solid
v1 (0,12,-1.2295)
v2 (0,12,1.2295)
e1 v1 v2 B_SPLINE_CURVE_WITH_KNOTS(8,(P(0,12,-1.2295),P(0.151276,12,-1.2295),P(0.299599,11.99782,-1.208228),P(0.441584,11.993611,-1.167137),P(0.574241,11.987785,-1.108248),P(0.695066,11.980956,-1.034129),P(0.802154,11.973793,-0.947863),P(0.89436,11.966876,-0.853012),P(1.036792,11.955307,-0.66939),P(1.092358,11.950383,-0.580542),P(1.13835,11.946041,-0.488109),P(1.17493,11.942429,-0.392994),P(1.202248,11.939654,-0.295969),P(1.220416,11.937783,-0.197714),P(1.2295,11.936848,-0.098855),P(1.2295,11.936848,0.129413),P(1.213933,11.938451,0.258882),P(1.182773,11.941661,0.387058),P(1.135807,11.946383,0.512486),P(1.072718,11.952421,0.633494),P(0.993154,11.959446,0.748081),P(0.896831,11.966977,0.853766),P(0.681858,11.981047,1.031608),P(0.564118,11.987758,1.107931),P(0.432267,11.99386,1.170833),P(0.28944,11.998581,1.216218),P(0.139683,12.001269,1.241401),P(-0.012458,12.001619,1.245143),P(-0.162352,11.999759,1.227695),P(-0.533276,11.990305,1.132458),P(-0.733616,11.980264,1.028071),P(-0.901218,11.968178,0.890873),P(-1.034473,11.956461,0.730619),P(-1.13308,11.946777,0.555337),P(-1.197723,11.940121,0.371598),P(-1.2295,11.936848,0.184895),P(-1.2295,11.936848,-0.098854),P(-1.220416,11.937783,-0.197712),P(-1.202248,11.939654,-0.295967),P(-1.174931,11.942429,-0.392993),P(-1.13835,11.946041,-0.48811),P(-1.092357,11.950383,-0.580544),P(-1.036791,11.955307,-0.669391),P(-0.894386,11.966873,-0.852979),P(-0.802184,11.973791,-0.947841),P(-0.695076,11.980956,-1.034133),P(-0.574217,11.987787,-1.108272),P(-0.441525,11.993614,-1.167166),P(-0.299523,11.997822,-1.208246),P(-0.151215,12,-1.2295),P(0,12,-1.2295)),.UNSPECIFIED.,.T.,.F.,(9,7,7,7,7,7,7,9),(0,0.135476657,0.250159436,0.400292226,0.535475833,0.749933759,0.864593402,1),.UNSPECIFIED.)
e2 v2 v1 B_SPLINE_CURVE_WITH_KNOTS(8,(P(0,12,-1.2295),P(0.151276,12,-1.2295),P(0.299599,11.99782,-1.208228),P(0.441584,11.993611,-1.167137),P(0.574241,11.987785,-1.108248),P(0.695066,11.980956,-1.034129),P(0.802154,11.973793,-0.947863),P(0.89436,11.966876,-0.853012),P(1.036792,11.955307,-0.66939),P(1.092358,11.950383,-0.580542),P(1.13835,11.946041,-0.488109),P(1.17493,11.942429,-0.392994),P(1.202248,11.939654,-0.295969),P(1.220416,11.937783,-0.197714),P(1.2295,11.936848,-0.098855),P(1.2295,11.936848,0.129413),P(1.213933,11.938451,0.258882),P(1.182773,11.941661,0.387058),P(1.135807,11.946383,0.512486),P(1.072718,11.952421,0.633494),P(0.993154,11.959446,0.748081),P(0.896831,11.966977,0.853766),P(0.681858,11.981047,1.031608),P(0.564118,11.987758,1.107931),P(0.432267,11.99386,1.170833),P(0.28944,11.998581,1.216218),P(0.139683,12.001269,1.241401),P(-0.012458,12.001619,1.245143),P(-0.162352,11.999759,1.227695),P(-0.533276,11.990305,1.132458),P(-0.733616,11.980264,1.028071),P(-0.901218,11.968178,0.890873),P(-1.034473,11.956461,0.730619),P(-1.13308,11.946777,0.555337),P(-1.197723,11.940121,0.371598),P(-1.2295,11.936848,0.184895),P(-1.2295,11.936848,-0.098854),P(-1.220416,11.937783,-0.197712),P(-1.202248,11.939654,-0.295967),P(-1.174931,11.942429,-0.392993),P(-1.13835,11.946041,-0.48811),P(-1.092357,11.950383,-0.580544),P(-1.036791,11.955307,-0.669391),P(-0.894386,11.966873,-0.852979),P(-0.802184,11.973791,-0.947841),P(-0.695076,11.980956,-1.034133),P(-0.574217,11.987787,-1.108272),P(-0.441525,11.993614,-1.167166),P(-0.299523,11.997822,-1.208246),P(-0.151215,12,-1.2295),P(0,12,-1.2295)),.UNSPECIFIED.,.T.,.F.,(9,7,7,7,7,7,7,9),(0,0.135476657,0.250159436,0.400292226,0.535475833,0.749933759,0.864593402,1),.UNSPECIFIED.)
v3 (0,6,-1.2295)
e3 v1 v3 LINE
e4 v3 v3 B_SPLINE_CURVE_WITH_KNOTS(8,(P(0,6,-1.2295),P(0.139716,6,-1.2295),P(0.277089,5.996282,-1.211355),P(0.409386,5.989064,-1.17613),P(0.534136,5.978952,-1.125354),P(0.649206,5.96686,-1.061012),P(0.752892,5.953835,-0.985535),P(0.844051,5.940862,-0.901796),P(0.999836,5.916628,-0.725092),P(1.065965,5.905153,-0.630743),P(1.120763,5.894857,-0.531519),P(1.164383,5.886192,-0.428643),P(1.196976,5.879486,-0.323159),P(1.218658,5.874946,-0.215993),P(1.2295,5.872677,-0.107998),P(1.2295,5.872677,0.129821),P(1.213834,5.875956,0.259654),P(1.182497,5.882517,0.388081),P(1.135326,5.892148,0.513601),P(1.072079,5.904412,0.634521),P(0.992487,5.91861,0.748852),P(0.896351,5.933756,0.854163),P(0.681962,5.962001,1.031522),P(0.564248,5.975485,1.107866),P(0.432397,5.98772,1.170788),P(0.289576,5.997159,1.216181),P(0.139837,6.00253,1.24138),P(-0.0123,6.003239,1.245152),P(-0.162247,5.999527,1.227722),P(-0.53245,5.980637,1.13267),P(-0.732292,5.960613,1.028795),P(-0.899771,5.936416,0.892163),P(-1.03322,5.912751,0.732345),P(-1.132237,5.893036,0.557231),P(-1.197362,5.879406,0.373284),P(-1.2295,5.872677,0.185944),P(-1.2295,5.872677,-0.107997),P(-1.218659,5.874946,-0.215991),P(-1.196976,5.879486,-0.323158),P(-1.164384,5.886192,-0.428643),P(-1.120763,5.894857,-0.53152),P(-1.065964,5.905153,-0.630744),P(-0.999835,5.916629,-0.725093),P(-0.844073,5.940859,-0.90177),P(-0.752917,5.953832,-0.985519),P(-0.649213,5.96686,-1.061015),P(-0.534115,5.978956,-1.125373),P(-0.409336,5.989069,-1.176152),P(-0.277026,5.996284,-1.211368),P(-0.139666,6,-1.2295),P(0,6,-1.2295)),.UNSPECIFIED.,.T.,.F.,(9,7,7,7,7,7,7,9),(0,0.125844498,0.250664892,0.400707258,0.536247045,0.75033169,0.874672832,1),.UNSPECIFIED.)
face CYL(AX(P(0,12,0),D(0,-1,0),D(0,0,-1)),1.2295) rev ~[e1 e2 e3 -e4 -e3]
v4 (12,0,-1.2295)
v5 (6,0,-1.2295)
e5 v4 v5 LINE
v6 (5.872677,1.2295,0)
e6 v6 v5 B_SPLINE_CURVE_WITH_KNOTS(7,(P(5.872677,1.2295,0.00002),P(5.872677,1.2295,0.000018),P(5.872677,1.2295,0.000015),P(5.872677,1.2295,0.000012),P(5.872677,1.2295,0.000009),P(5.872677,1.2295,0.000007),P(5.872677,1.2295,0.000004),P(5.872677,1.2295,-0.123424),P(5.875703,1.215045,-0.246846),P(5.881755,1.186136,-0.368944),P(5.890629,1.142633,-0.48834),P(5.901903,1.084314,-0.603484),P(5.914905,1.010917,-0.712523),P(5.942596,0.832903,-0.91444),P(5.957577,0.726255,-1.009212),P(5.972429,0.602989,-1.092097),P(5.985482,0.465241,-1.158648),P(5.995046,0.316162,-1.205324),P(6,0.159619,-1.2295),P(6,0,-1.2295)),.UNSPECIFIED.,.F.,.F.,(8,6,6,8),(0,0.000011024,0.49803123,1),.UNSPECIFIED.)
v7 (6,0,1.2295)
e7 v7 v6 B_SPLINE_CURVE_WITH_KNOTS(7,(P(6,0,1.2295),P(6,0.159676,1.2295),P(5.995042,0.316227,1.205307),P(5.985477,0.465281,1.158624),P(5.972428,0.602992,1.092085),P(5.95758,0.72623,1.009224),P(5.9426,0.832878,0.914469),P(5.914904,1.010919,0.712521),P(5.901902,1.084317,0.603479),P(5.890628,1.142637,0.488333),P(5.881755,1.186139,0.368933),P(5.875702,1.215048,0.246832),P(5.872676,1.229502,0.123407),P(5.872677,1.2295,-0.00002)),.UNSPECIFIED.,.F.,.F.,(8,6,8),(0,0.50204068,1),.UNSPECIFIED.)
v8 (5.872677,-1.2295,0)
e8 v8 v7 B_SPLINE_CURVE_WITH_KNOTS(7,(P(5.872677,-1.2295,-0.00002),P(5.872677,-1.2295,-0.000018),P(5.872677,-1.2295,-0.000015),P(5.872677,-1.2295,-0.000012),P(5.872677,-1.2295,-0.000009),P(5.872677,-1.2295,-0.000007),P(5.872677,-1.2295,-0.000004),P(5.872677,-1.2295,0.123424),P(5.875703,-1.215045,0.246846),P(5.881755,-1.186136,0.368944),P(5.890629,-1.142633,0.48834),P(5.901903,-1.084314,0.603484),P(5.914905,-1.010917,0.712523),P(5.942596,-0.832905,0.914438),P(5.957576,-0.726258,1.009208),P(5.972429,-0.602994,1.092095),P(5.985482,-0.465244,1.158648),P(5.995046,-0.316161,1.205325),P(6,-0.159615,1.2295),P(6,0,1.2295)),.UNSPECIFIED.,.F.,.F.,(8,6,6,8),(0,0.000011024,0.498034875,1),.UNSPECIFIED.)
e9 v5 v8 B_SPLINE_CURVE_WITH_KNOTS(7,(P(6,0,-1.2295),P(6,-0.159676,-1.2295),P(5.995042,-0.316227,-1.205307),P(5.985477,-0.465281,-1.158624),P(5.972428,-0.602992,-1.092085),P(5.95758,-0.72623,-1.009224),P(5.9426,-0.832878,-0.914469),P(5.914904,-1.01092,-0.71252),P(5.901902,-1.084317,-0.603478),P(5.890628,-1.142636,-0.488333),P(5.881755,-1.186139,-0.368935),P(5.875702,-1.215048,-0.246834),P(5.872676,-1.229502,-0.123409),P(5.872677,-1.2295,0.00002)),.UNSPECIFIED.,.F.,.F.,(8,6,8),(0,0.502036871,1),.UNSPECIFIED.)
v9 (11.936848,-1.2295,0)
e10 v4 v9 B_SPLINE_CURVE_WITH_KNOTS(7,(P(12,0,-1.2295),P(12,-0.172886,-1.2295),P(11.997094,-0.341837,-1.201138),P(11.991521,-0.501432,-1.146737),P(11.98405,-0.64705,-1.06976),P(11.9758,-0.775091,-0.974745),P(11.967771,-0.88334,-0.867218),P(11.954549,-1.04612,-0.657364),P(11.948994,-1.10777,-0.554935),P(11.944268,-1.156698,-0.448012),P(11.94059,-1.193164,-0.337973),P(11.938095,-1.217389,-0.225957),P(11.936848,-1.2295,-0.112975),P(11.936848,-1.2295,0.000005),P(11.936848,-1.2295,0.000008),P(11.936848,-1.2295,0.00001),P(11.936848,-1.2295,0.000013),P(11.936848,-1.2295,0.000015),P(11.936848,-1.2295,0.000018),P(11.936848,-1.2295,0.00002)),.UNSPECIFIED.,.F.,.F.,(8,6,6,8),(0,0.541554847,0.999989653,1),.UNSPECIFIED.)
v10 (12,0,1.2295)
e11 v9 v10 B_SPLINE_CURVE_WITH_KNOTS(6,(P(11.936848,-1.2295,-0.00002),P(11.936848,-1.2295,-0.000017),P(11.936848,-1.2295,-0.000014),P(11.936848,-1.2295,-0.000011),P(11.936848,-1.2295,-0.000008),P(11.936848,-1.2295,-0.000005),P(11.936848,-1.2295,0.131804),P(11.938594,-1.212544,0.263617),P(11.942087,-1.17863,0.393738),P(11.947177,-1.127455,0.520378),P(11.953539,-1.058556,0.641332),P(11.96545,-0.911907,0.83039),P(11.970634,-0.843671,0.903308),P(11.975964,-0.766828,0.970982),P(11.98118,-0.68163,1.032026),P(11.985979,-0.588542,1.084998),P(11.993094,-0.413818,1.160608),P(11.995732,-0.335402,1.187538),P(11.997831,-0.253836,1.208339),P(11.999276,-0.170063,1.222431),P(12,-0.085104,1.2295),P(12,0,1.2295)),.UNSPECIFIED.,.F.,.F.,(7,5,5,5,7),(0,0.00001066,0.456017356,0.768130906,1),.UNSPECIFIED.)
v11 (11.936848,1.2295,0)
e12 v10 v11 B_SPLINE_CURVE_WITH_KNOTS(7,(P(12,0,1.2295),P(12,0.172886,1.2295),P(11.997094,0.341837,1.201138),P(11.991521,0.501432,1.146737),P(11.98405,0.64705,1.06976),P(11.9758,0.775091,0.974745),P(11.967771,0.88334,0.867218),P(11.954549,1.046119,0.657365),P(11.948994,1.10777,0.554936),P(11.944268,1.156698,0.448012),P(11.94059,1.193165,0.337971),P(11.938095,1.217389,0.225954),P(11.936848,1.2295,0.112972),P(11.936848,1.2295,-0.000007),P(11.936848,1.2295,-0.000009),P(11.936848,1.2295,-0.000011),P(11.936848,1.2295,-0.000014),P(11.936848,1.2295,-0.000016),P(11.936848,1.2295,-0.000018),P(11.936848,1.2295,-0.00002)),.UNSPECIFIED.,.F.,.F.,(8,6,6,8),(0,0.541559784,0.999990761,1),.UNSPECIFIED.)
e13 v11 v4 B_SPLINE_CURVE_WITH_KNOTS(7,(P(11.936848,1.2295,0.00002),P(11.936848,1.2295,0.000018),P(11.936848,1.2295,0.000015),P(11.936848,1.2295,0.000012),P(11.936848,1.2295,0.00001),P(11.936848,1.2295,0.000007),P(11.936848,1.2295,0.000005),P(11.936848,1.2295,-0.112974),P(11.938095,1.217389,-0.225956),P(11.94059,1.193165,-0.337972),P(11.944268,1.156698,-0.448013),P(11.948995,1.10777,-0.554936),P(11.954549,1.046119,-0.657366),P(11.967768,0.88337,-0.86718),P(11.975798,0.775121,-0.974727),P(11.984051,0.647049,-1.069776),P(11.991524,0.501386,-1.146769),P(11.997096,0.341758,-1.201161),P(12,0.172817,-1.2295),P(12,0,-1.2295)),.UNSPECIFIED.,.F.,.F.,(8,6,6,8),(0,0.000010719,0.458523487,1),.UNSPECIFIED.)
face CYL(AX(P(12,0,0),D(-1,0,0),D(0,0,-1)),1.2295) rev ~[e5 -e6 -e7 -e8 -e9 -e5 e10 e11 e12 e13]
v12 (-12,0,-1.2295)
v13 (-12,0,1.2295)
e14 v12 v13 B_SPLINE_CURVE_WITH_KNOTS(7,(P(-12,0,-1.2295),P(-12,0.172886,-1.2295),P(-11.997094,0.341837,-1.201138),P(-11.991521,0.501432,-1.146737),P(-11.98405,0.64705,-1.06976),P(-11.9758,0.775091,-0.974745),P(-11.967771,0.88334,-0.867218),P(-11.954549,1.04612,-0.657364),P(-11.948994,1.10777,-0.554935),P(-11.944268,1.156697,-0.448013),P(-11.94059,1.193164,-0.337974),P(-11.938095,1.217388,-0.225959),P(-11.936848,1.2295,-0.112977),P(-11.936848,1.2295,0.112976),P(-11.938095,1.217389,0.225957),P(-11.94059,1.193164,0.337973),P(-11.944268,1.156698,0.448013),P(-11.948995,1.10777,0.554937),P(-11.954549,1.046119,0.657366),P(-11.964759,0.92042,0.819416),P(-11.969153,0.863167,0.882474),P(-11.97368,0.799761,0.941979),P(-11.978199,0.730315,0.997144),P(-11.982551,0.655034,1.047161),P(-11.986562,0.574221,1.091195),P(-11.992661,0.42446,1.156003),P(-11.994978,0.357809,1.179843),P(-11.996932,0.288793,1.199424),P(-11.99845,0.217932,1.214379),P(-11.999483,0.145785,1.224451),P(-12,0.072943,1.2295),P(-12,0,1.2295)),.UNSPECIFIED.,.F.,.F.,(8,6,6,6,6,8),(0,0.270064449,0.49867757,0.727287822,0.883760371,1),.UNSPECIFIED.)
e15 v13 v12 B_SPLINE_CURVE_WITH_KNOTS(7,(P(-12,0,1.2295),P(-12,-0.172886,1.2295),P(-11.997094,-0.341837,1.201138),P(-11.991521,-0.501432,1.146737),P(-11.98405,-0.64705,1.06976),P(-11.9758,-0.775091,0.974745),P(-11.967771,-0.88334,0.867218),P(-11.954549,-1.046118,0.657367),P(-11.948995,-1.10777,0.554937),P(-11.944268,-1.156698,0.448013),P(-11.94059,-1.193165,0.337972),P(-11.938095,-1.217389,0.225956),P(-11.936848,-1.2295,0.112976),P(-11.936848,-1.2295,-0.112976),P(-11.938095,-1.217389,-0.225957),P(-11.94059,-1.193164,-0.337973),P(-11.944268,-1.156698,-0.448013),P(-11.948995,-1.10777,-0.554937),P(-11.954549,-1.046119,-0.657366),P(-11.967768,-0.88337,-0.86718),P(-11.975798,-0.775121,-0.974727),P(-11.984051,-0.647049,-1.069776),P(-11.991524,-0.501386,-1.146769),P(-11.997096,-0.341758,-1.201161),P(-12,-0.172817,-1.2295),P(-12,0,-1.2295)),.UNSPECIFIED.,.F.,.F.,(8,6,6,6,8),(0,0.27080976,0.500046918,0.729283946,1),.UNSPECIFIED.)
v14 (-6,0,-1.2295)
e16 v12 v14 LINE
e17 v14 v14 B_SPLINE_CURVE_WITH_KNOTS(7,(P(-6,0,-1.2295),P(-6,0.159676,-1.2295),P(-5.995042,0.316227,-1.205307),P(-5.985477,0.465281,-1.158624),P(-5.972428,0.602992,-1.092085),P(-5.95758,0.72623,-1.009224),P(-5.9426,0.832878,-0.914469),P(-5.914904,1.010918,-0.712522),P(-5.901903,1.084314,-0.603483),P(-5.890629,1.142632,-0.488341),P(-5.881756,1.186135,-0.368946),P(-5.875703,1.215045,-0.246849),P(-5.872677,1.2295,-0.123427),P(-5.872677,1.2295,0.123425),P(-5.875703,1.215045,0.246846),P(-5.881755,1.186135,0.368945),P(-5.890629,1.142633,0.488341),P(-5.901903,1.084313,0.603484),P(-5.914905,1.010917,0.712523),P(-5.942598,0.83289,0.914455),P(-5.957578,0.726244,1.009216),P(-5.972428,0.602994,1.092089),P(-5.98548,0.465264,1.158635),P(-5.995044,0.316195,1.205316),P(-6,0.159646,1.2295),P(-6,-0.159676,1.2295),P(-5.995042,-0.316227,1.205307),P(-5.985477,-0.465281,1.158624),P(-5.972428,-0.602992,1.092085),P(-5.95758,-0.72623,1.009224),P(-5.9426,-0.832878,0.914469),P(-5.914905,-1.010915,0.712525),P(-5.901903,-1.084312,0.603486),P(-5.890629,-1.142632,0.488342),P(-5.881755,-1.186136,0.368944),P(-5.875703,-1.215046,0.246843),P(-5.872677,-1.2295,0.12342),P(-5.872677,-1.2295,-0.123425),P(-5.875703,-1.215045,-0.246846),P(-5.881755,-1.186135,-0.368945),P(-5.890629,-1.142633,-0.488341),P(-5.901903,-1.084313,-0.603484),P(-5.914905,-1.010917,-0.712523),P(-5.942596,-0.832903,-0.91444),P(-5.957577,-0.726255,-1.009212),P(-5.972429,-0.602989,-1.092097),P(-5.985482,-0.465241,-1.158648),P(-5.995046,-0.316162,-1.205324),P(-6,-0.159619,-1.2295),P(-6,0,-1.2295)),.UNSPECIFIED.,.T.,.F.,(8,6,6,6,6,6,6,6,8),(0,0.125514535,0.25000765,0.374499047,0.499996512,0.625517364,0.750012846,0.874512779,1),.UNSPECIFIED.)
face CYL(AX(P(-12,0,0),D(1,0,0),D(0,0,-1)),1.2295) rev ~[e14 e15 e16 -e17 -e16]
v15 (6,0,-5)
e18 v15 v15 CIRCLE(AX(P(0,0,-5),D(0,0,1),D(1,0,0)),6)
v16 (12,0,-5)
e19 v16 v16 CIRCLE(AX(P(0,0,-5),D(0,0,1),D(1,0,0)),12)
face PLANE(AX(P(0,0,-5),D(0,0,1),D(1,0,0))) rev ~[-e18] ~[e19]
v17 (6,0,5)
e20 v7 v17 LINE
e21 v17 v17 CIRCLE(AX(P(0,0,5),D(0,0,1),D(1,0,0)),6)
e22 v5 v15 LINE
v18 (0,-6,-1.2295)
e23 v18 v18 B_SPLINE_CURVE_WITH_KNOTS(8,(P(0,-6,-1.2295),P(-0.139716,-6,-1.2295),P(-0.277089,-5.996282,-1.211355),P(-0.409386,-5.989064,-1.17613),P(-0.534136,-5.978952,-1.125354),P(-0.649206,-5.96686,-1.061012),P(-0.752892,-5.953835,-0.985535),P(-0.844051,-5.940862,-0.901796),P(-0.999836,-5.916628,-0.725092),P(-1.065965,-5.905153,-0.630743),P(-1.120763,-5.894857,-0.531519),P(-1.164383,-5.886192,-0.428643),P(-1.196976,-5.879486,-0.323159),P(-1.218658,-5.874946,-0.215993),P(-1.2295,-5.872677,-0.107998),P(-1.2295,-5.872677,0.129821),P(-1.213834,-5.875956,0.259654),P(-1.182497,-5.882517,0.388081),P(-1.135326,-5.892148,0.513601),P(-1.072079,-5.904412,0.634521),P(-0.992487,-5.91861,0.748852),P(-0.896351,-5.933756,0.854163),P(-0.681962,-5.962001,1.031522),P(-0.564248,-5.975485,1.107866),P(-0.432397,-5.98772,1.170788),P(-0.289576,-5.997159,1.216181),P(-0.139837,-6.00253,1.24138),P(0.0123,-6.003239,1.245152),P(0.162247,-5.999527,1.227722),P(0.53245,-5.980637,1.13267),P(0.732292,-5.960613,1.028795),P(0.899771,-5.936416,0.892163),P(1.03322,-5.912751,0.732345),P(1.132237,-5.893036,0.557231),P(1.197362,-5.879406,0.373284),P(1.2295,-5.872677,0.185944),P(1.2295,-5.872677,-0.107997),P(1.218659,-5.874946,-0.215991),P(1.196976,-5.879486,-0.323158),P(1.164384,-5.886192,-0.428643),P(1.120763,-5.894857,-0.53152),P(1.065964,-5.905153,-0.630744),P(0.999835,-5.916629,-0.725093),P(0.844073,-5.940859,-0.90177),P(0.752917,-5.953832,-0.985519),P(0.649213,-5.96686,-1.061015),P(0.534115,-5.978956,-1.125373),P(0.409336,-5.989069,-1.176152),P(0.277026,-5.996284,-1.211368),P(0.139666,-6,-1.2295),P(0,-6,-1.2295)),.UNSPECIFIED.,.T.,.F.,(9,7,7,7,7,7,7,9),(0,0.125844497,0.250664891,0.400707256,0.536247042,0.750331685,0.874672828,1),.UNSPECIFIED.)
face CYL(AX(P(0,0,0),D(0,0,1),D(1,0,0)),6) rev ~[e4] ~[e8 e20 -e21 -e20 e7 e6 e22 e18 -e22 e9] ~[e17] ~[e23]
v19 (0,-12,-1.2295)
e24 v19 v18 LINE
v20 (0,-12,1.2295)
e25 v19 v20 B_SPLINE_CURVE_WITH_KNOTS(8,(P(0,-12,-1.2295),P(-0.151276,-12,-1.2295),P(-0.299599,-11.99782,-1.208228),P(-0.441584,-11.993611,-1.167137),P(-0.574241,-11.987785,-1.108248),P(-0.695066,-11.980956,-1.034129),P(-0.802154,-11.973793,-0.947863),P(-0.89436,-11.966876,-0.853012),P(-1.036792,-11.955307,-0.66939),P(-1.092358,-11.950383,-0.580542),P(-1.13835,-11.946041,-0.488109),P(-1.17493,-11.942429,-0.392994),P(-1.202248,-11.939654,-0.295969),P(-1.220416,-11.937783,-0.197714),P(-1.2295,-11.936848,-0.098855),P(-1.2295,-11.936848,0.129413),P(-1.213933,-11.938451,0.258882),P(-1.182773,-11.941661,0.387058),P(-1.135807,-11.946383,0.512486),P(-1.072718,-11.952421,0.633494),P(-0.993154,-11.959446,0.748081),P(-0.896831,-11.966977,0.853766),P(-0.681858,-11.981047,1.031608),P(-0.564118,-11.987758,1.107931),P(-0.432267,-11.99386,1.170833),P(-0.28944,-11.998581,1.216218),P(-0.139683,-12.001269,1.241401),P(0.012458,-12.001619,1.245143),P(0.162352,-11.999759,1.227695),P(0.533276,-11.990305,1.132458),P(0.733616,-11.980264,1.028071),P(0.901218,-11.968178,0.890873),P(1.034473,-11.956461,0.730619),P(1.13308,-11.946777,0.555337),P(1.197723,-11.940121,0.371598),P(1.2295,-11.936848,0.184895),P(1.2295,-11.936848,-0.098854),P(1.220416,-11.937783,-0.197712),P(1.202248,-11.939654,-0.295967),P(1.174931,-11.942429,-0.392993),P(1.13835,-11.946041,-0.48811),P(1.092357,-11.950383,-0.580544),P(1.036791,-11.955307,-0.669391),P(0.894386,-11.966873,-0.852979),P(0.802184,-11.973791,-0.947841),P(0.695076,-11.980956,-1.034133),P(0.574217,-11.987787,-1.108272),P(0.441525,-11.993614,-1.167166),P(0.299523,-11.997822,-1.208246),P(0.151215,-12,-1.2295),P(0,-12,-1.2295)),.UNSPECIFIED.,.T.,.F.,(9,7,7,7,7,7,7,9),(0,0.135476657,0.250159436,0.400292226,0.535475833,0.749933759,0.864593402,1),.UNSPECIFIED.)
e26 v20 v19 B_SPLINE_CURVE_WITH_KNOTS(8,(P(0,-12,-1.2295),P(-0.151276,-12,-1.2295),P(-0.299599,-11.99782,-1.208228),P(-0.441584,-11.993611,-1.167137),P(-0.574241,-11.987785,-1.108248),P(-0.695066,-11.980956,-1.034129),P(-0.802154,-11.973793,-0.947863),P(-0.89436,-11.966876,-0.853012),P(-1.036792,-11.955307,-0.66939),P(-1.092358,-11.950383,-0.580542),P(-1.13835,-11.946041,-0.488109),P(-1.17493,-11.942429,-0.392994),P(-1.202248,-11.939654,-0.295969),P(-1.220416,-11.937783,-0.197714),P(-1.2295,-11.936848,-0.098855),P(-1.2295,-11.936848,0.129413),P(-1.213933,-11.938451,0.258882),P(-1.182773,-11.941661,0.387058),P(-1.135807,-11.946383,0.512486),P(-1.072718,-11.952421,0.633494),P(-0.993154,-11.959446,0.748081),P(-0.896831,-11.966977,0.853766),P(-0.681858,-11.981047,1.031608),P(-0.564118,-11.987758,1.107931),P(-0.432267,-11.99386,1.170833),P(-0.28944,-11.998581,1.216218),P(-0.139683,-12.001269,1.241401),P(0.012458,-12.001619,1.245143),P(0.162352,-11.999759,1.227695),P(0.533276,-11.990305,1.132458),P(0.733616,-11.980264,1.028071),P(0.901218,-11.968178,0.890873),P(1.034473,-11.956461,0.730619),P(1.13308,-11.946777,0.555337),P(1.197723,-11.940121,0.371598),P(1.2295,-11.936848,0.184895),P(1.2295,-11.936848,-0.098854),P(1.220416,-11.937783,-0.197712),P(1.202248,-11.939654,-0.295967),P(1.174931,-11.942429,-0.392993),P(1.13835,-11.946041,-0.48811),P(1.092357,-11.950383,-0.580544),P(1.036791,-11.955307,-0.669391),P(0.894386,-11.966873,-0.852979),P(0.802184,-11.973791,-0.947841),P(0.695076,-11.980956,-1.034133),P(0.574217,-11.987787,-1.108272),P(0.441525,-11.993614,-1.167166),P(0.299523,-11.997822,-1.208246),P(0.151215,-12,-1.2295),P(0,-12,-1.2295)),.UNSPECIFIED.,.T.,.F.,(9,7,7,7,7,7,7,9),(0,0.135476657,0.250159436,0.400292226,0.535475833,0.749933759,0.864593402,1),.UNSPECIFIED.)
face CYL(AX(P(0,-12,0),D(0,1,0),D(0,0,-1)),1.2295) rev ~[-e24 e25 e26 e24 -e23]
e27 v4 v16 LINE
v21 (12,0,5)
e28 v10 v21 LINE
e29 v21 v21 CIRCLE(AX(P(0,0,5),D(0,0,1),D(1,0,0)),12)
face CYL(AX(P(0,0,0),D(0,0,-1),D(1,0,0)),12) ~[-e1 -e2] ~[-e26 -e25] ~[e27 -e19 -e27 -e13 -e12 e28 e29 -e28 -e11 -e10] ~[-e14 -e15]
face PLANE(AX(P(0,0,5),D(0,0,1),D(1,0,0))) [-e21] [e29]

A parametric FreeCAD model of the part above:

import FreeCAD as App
import Part
import Sketcher
from FreeCAD import Vector
Q = App.Units.Quantity

doc = App.newDocument("Part")
params = doc.addObject("Spreadsheet::Sheet", "Params")
for row, (alias, value) in enumerate([
    ("sketch1_diameter", "24 mm"),
    ("sketch1_diameter2", "12 mm"),
    ("pad1_length", "10 mm"),
    ("hole_diameter", "2.459 mm"),
    ("hole_depth", "6.5 mm"),
], start=1):
    params.set(f"A{row}", alias)
    params.set(f"B{row}", "=" + value)
    params.setAlias(f"B{row}", alias)

body = doc.addObject("PartDesign::Body", "Body")

# Sketch on XY plane
sketch1 = body.newObject("Sketcher::SketchObject", "Sketch")
sketch1.AttachmentSupport = (doc.getObject("XY_Plane"), [""])
sketch1.MapMode = "FlatFace"
sketch1.addGeometry([
    Part.Circle(Vector(0, 0, 0), Vector(0, 0, 1), 12),
    Part.Circle(Vector(0, 0, 0), Vector(0, 0, 1), 6),
], False)
sketch1.addConstraint([
    Sketcher.Constraint("Coincident", 0, 3, -1, 1),
    Sketcher.Constraint("Coincident", 1, 3, -1, 1),
    Sketcher.Constraint("Diameter", 0, Q("24 mm")),
    Sketcher.Constraint("Diameter", 1, Q("12 mm")),
])
sketch1.setExpression("Constraints[2]", "Params.sketch1_diameter")
sketch1.setExpression("Constraints[3]", "Params.sketch1_diameter2")
pad1 = body.newObject("PartDesign::Pad", "Pad")
pad1.Profile = sketch1
pad1.setExpression("Length", "Params.pad1_length")
pad1.Midplane = True

# Sketch on YZ plane
sketch2 = body.newObject("Sketcher::SketchObject", "Sketch001")
sketch2.AttachmentSupport = (doc.getObject("YZ_Plane"), [""])
sketch2.MapMode = "FlatFace"
sketch2.AttachmentOffset = App.Placement(Vector(0, 0, 12), App.Rotation())
sketch2.addGeometry(Part.Circle(Vector(0, 0, 0), Vector(0, 0, 1), 1.2), False)
sketch2.addConstraint([
    Sketcher.Constraint("Coincident", 0, 3, -1, 1),
    Sketcher.Constraint("Diameter", 0, Q("2.459 mm")),
])
doc.recompute()
hole = body.newObject("PartDesign::Hole", "Hole")
hole.Profile = sketch2
hole.ThreadType = "None"
hole.setExpression("Diameter", "Params.hole_diameter")
hole.DepthType = "Dimension"
hole.setExpression("Depth", "Params.hole_depth")
hole.DrillPoint = "Flat"
doc.recompute()

polarpattern = body.newObject("PartDesign::PolarPattern", "PolarPattern")
polarpattern.Originals = [hole]
polarpattern.Axis = (doc.getObject("Z_Axis"), [""])
polarpattern.Angle = 360
polarpattern.Occurrences = 4
body.Tip = polarpattern

doc.recompute()
